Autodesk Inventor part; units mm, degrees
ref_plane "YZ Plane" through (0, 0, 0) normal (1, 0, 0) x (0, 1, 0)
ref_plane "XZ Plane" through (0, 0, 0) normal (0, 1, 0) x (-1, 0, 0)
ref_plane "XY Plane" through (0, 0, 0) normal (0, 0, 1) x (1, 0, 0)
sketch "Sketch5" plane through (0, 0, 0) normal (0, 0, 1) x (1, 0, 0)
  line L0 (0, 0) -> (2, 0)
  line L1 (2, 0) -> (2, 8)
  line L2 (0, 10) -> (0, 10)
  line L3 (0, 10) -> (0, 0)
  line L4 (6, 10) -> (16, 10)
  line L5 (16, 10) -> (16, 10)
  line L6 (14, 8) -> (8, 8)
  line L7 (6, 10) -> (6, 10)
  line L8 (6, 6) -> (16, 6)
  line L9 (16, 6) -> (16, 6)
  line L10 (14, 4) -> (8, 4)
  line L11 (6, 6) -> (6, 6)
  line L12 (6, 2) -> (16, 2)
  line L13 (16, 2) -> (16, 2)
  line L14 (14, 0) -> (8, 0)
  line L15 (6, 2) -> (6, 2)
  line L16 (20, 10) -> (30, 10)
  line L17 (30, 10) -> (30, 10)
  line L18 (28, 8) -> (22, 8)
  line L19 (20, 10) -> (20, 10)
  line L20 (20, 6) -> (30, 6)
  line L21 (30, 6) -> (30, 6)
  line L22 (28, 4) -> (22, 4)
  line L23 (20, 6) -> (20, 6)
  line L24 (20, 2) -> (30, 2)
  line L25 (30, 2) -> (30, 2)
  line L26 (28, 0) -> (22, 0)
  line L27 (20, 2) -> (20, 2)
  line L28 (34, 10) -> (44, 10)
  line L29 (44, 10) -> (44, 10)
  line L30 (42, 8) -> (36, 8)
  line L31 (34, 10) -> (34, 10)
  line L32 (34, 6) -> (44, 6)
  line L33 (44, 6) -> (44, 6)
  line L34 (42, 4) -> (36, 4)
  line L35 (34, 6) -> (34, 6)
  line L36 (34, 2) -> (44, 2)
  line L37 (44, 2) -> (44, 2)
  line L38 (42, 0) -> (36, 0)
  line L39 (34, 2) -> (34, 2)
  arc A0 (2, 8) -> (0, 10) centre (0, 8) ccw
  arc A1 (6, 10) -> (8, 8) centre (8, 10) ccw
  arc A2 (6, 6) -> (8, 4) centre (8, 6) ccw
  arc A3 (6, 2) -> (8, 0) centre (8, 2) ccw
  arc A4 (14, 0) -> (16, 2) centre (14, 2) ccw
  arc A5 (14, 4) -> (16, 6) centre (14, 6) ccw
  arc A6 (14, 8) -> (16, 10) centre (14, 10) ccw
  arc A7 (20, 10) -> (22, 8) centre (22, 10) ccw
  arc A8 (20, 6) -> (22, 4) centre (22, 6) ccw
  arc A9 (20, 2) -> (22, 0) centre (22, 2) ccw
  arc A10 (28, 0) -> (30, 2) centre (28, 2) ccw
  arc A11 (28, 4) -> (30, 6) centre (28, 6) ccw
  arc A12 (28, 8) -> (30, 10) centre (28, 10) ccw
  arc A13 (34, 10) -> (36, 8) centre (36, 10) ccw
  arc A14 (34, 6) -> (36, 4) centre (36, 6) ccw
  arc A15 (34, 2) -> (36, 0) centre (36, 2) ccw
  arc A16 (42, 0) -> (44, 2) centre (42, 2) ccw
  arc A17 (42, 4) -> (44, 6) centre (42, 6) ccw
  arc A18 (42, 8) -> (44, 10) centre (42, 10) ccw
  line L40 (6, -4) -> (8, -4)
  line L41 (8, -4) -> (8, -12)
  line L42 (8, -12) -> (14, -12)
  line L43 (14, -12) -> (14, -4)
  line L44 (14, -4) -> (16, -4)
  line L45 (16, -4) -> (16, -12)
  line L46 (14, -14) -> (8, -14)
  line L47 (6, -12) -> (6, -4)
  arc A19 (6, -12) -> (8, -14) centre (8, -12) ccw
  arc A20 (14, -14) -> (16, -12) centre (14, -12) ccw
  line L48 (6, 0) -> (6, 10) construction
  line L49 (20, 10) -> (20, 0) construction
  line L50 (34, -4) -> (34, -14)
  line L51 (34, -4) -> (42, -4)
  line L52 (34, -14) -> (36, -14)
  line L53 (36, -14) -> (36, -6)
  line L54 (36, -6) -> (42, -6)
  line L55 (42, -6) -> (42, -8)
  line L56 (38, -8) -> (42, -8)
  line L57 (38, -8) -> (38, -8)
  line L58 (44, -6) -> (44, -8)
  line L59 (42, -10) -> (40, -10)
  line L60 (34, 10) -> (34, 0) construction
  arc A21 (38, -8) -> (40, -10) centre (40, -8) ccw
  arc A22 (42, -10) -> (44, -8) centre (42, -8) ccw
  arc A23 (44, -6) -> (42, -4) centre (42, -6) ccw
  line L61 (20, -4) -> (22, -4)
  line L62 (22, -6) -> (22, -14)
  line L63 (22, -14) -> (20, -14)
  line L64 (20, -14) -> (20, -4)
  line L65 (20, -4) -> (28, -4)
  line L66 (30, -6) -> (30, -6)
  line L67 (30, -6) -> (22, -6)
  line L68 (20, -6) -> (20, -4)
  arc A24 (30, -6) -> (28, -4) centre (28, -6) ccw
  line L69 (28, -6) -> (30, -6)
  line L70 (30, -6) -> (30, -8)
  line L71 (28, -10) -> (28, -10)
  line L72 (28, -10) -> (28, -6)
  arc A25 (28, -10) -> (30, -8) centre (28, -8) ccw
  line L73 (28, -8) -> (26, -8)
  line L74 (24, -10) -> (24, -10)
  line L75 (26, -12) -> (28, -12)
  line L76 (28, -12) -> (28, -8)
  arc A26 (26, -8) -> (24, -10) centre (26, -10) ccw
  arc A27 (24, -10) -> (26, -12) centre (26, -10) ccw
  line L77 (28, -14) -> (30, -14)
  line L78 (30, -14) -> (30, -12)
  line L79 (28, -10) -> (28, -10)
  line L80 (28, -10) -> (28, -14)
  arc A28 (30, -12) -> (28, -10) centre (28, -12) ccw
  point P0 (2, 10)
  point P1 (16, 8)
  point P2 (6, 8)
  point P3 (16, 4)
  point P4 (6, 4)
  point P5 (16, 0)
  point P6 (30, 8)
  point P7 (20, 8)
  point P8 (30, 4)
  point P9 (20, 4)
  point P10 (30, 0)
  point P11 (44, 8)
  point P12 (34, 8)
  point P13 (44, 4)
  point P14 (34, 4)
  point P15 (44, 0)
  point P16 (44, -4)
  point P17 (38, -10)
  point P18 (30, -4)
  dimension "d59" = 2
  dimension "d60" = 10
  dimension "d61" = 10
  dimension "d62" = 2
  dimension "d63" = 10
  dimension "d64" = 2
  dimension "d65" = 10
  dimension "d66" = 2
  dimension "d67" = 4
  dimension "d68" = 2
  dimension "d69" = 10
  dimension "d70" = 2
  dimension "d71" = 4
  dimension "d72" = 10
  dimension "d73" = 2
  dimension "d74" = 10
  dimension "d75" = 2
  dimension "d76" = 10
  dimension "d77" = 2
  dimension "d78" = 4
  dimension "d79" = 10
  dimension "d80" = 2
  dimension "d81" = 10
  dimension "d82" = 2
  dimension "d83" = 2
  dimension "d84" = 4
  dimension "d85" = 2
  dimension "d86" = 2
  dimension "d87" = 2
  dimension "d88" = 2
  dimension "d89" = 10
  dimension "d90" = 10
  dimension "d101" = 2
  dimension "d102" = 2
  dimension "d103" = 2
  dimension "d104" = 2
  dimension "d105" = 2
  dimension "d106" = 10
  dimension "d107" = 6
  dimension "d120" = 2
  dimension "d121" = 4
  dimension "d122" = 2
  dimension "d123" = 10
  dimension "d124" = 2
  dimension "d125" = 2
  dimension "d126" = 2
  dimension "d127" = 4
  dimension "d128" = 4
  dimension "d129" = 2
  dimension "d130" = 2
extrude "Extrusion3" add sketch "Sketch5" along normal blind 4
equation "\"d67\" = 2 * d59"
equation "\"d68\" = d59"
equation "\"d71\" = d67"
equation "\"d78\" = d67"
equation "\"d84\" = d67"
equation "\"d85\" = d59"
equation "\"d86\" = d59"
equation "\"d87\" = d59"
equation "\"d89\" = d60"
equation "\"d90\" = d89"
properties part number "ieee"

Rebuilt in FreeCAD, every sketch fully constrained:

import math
import FreeCAD as App
import Part
import Sketcher

doc = App.newDocument("Part")
params = doc.addObject("Spreadsheet::Sheet", "Params")
for row, (alias, value) in enumerate([
    ("sketch1_radius", "2 mm"),
    ("pad1_length", "4 mm"),
], start=1):
    params.set(f"A{row}", alias)
    params.set(f"B{row}", "=" + value)
    params.setAlias(f"B{row}", alias)

body = doc.addObject("PartDesign::Body", "Body")
body.AllowCompound = True

# Sketch on XY plane
sketch1 = body.newObject("Sketcher::SketchObject", "Sketch")
sketch1.AttachmentSupport = (doc.getObject("XY_Plane"), [""])
sketch1.MapMode = "FlatFace"
sketch1.addGeometry([
    Part.LineSegment(App.Vector(0, 10, 0), App.Vector(0, 0, 0)),  # 0
    Part.LineSegment(App.Vector(0, 0, 0), App.Vector(2, 0, 0)),  # 1
    Part.LineSegment(App.Vector(2, 0, 0), App.Vector(2, 8, 0)),  # 2
    Part.ArcOfCircle(Part.Circle(App.Vector(0, 8, 0), App.Vector(0, 0, 1), 2), math.radians(0), math.radians(90)),  # 3
    Part.LineSegment(App.Vector(16, 10, 0), App.Vector(6, 10, 0)),  # 4
    Part.ArcOfCircle(Part.Circle(App.Vector(8, 10, 0), App.Vector(0, 0, 1), 2), math.radians(180), math.radians(270)),  # 5
    Part.LineSegment(App.Vector(8, 8, 0), App.Vector(14, 8, 0)),  # 6
    Part.ArcOfCircle(Part.Circle(App.Vector(14, 10, 0), App.Vector(0, 0, 1), 2), math.radians(-90), math.radians(0)),  # 7
    Part.LineSegment(App.Vector(16, 6, 0), App.Vector(6, 6, 0)),  # 8
    Part.ArcOfCircle(Part.Circle(App.Vector(8, 6, 0), App.Vector(0, 0, 1), 2), math.radians(180), math.radians(270)),  # 9
    Part.LineSegment(App.Vector(8, 4, 0), App.Vector(14, 4, 0)),  # 10
    Part.ArcOfCircle(Part.Circle(App.Vector(14, 6, 0), App.Vector(0, 0, 1), 2), math.radians(-90), math.radians(0)),  # 11
    Part.LineSegment(App.Vector(16, 2, 0), App.Vector(6, 2, 0)),  # 12
    Part.ArcOfCircle(Part.Circle(App.Vector(8, 2, 0), App.Vector(0, 0, 1), 2), math.radians(180), math.radians(270)),  # 13
    Part.LineSegment(App.Vector(8, 0, 0), App.Vector(14, 0, 0)),  # 14
    Part.ArcOfCircle(Part.Circle(App.Vector(14, 2, 0), App.Vector(0, 0, 1), 2), math.radians(-90), math.radians(0)),  # 15
    Part.LineSegment(App.Vector(30, 10, 0), App.Vector(20, 10, 0)),  # 16
    Part.ArcOfCircle(Part.Circle(App.Vector(22, 10, 0), App.Vector(0, 0, 1), 2), math.radians(180), math.radians(270)),  # 17
    Part.LineSegment(App.Vector(22, 8, 0), App.Vector(28, 8, 0)),  # 18
    Part.ArcOfCircle(Part.Circle(App.Vector(28, 10, 0), App.Vector(0, 0, 1), 2), math.radians(-90), math.radians(0)),  # 19
    Part.LineSegment(App.Vector(30, 6, 0), App.Vector(20, 6, 0)),  # 20
    Part.ArcOfCircle(Part.Circle(App.Vector(22, 6, 0), App.Vector(0, 0, 1), 2), math.radians(180), math.radians(270)),  # 21
    Part.LineSegment(App.Vector(22, 4, 0), App.Vector(28, 4, 0)),  # 22
    Part.ArcOfCircle(Part.Circle(App.Vector(28, 6, 0), App.Vector(0, 0, 1), 2), math.radians(-90), math.radians(0)),  # 23
    Part.LineSegment(App.Vector(30, 2, 0), App.Vector(20, 2, 0)),  # 24
    Part.ArcOfCircle(Part.Circle(App.Vector(22, 2, 0), App.Vector(0, 0, 1), 2), math.radians(180), math.radians(270)),  # 25
    Part.LineSegment(App.Vector(22, 0, 0), App.Vector(28, 0, 0)),  # 26
    Part.ArcOfCircle(Part.Circle(App.Vector(28, 2, 0), App.Vector(0, 0, 1), 2), math.radians(-90), math.radians(0)),  # 27
    Part.LineSegment(App.Vector(44, 10, 0), App.Vector(34, 10, 0)),  # 28
    Part.ArcOfCircle(Part.Circle(App.Vector(36, 10, 0), App.Vector(0, 0, 1), 2), math.radians(180), math.radians(270)),  # 29
    Part.LineSegment(App.Vector(36, 8, 0), App.Vector(42, 8, 0)),  # 30
    Part.ArcOfCircle(Part.Circle(App.Vector(42, 10, 0), App.Vector(0, 0, 1), 2), math.radians(-90), math.radians(0)),  # 31
    Part.LineSegment(App.Vector(44, 6, 0), App.Vector(34, 6, 0)),  # 32
    Part.ArcOfCircle(Part.Circle(App.Vector(36, 6, 0), App.Vector(0, 0, 1), 2), math.radians(180), math.radians(270)),  # 33
    Part.LineSegment(App.Vector(36, 4, 0), App.Vector(42, 4, 0)),  # 34
    Part.ArcOfCircle(Part.Circle(App.Vector(42, 6, 0), App.Vector(0, 0, 1), 2), math.radians(-90), math.radians(0)),  # 35
    Part.LineSegment(App.Vector(44, 2, 0), App.Vector(34, 2, 0)),  # 36
    Part.ArcOfCircle(Part.Circle(App.Vector(36, 2, 0), App.Vector(0, 0, 1), 2), math.radians(180), math.radians(270)),  # 37
    Part.LineSegment(App.Vector(36, 0, 0), App.Vector(42, 0, 0)),  # 38
    Part.ArcOfCircle(Part.Circle(App.Vector(42, 2, 0), App.Vector(0, 0, 1), 2), math.radians(-90), math.radians(0)),  # 39
    Part.LineSegment(App.Vector(8, -4, 0), App.Vector(6, -4, 0)),  # 40
    Part.LineSegment(App.Vector(6, -4, 0), App.Vector(6, -12, 0)),  # 41
    Part.ArcOfCircle(Part.Circle(App.Vector(8, -12, 0), App.Vector(0, 0, 1), 2), math.radians(180), math.radians(270)),  # 42
    Part.LineSegment(App.Vector(8, -14, 0), App.Vector(14, -14, 0)),  # 43
    Part.ArcOfCircle(Part.Circle(App.Vector(14, -12, 0), App.Vector(0, 0, 1), 2), math.radians(-90), math.radians(0)),  # 44
    Part.LineSegment(App.Vector(16, -12, 0), App.Vector(16, -4, 0)),  # 45
    Part.LineSegment(App.Vector(16, -4, 0), App.Vector(14, -4, 0)),  # 46
    Part.LineSegment(App.Vector(14, -4, 0), App.Vector(14, -12, 0)),  # 47
    Part.LineSegment(App.Vector(14, -12, 0), App.Vector(8, -12, 0)),  # 48
    Part.LineSegment(App.Vector(8, -12, 0), App.Vector(8, -4, 0)),  # 49
    Part.LineSegment(App.Vector(42, -4, 0), App.Vector(34, -4, 0)),  # 50
    Part.LineSegment(App.Vector(34, -4, 0), App.Vector(34, -14, 0)),  # 51
    Part.LineSegment(App.Vector(34, -14, 0), App.Vector(36, -14, 0)),  # 52
    Part.LineSegment(App.Vector(36, -14, 0), App.Vector(36, -6, 0)),  # 53
    Part.LineSegment(App.Vector(36, -6, 0), App.Vector(42, -6, 0)),  # 54
    Part.LineSegment(App.Vector(42, -6, 0), App.Vector(42, -8, 0)),  # 55
    Part.LineSegment(App.Vector(42, -8, 0), App.Vector(38, -8, 0)),  # 56
    Part.ArcOfCircle(Part.Circle(App.Vector(40, -8, 0), App.Vector(0, 0, 1), 2), math.radians(180), math.radians(270)),  # 57
    Part.LineSegment(App.Vector(40, -10, 0), App.Vector(42, -10, 0)),  # 58
    Part.ArcOfCircle(Part.Circle(App.Vector(42, -8, 0), App.Vector(0, 0, 1), 2), math.radians(-90), math.radians(0)),  # 59
    Part.LineSegment(App.Vector(44, -8, 0), App.Vector(44, -6, 0)),  # 60
    Part.ArcOfCircle(Part.Circle(App.Vector(42, -6, 0), App.Vector(0, 0, 1), 2), math.radians(0), math.radians(90)),  # 61
    Part.LineSegment(App.Vector(20, -4, 0), App.Vector(20, -14, 0)),  # 62
    Part.LineSegment(App.Vector(20, -14, 0), App.Vector(22, -14, 0)),  # 63
    Part.LineSegment(App.Vector(22, -14, 0), App.Vector(22, -6, 0)),  # 64
    Part.LineSegment(App.Vector(22, -6, 0), App.Vector(28, -6, 0)),  # 65
    Part.LineSegment(App.Vector(28, -6, 0), App.Vector(28, -8, 0)),  # 66
    Part.LineSegment(App.Vector(28, -8, 0), App.Vector(26, -8, 0)),  # 67
    Part.ArcOfCircle(Part.Circle(App.Vector(26, -10, 0), App.Vector(0, 0, 1), 2), math.radians(90), math.radians(270)),  # 68
    Part.LineSegment(App.Vector(26, -12, 0), App.Vector(28, -12, 0)),  # 69
    Part.LineSegment(App.Vector(28, -12, 0), App.Vector(28, -14, 0)),  # 70
    Part.LineSegment(App.Vector(28, -14, 0), App.Vector(30, -14, 0)),  # 71
    Part.LineSegment(App.Vector(30, -14, 0), App.Vector(30, -12, 0)),  # 72
    Part.ArcOfCircle(Part.Circle(App.Vector(28, -12, 0), App.Vector(0, 0, 1), 2), math.radians(0), math.radians(90)),  # 73
    Part.ArcOfCircle(Part.Circle(App.Vector(28, -8, 0), App.Vector(0, 0, 1), 2), math.radians(-90), math.radians(0)),  # 74
    Part.LineSegment(App.Vector(30, -8, 0), App.Vector(30, -6, 0)),  # 75
    Part.ArcOfCircle(Part.Circle(App.Vector(28, -6, 0), App.Vector(0, 0, 1), 2), math.radians(0), math.radians(90)),  # 76
    Part.LineSegment(App.Vector(28, -4, 0), App.Vector(20, -4, 0)),  # 77
], False)
sketch1.addConstraint([
    Sketcher.Constraint("Coincident", 0, 2, 1, 1),
    Sketcher.Constraint("Coincident", 1, 2, 2, 1),
    Sketcher.Constraint("Tangent", 2, 2, 3, 1),
    Sketcher.Constraint("Coincident", 3, 2, 0, 1),
    Sketcher.Constraint("Coincident", 4, 2, 5, 1),
    Sketcher.Constraint("Tangent", 5, 2, 6, 1),
    Sketcher.Constraint("Tangent", 6, 2, 7, 1),
    Sketcher.Constraint("Coincident", 7, 2, 4, 1),
    Sketcher.Constraint("Coincident", 8, 2, 9, 1),
    Sketcher.Constraint("Tangent", 9, 2, 10, 1),
    Sketcher.Constraint("Tangent", 10, 2, 11, 1),
    Sketcher.Constraint("Coincident", 11, 2, 8, 1),
    Sketcher.Constraint("Coincident", 12, 2, 13, 1),
    Sketcher.Constraint("Tangent", 13, 2, 14, 1),
    Sketcher.Constraint("Tangent", 14, 2, 15, 1),
    Sketcher.Constraint("Coincident", 15, 2, 12, 1),
    Sketcher.Constraint("Coincident", 16, 2, 17, 1),
    Sketcher.Constraint("Tangent", 17, 2, 18, 1),
    Sketcher.Constraint("Tangent", 18, 2, 19, 1),
    Sketcher.Constraint("Coincident", 19, 2, 16, 1),
    Sketcher.Constraint("Coincident", 20, 2, 21, 1),
    Sketcher.Constraint("Tangent", 21, 2, 22, 1),
    Sketcher.Constraint("Tangent", 22, 2, 23, 1),
    Sketcher.Constraint("Coincident", 23, 2, 20, 1),
    Sketcher.Constraint("Coincident", 24, 2, 25, 1),
    Sketcher.Constraint("Tangent", 25, 2, 26, 1),
    Sketcher.Constraint("Tangent", 26, 2, 27, 1),
    Sketcher.Constraint("Coincident", 27, 2, 24, 1),
    Sketcher.Constraint("Coincident", 28, 2, 29, 1),
    Sketcher.Constraint("Tangent", 29, 2, 30, 1),
    Sketcher.Constraint("Tangent", 30, 2, 31, 1),
    Sketcher.Constraint("Coincident", 31, 2, 28, 1),
    Sketcher.Constraint("Coincident", 32, 2, 33, 1),
    Sketcher.Constraint("Tangent", 33, 2, 34, 1),
    Sketcher.Constraint("Tangent", 34, 2, 35, 1),
    Sketcher.Constraint("Coincident", 35, 2, 32, 1),
    Sketcher.Constraint("Coincident", 36, 2, 37, 1),
    Sketcher.Constraint("Tangent", 37, 2, 38, 1),
    Sketcher.Constraint("Tangent", 38, 2, 39, 1),
    Sketcher.Constraint("Coincident", 39, 2, 36, 1),
    Sketcher.Constraint("Coincident", 40, 2, 41, 1),
    Sketcher.Constraint("Tangent", 41, 2, 42, 1),
    Sketcher.Constraint("Tangent", 42, 2, 43, 1),
    Sketcher.Constraint("Tangent", 43, 2, 44, 1),
    Sketcher.Constraint("Tangent", 44, 2, 45, 1),
    Sketcher.Constraint("Coincident", 45, 2, 46, 1),
    Sketcher.Constraint("Coincident", 46, 2, 47, 1),
    Sketcher.Constraint("Coincident", 47, 2, 48, 1),
    Sketcher.Constraint("Coincident", 48, 2, 49, 1),
    Sketcher.Constraint("Coincident", 49, 2, 40, 1),
    Sketcher.Constraint("Coincident", 50, 2, 51, 1),
    Sketcher.Constraint("Coincident", 51, 2, 52, 1),
    Sketcher.Constraint("Coincident", 52, 2, 53, 1),
    Sketcher.Constraint("Coincident", 53, 2, 54, 1),
    Sketcher.Constraint("Coincident", 54, 2, 55, 1),
    Sketcher.Constraint("Coincident", 55, 2, 56, 1),
    Sketcher.Constraint("Coincident", 56, 2, 57, 1),
    Sketcher.Constraint("Tangent", 57, 2, 58, 1),
    Sketcher.Constraint("Tangent", 58, 2, 59, 1),
    Sketcher.Constraint("Tangent", 59, 2, 60, 1),
    Sketcher.Constraint("Tangent", 60, 2, 61, 1),
    Sketcher.Constraint("Tangent", 61, 2, 50, 1),
    Sketcher.Constraint("Coincident", 62, 2, 63, 1),
    Sketcher.Constraint("Coincident", 63, 2, 64, 1),
    Sketcher.Constraint("Coincident", 64, 2, 65, 1),
    Sketcher.Constraint("Coincident", 65, 2, 66, 1),
    Sketcher.Constraint("Coincident", 66, 2, 67, 1),
    Sketcher.Constraint("Tangent", 67, 2, 68, 1),
    Sketcher.Constraint("Tangent", 68, 2, 69, 1),
    Sketcher.Constraint("Coincident", 69, 2, 70, 1),
    Sketcher.Constraint("Coincident", 70, 2, 71, 1),
    Sketcher.Constraint("Coincident", 71, 2, 72, 1),
    Sketcher.Constraint("Tangent", 72, 2, 73, 1),
    Sketcher.Constraint("Tangent", 73, 2, 74, 1),
    Sketcher.Constraint("Tangent", 74, 2, 75, 1),
    Sketcher.Constraint("Tangent", 75, 2, 76, 1),
    Sketcher.Constraint("Tangent", 76, 2, 77, 1),
    Sketcher.Constraint("Coincident", 77, 2, 62, 1),
    Sketcher.Constraint("Vertical", 0),
    Sketcher.Constraint("Horizontal", 1),
    Sketcher.Constraint("Vertical", 2),
    Sketcher.Constraint("Horizontal", 4),
    Sketcher.Constraint("Horizontal", 6),
    Sketcher.Constraint("Horizontal", 8),
    Sketcher.Constraint("Horizontal", 10),
    Sketcher.Constraint("Horizontal", 12),
    Sketcher.Constraint("Horizontal", 14),
    Sketcher.Constraint("Horizontal", 16),
    Sketcher.Constraint("Horizontal", 18),
    Sketcher.Constraint("Horizontal", 20),
    Sketcher.Constraint("Horizontal", 22),
    Sketcher.Constraint("Horizontal", 24),
    Sketcher.Constraint("Horizontal", 26),
    Sketcher.Constraint("Horizontal", 28),
    Sketcher.Constraint("Horizontal", 30),
    Sketcher.Constraint("Horizontal", 32),
    Sketcher.Constraint("Horizontal", 34),
    Sketcher.Constraint("Horizontal", 36),
    Sketcher.Constraint("Horizontal", 38),
    Sketcher.Constraint("Horizontal", 40),
    Sketcher.Constraint("Vertical", 41),
    Sketcher.Constraint("Horizontal", 43),
    Sketcher.Constraint("Vertical", 45),
    Sketcher.Constraint("Horizontal", 46),
    Sketcher.Constraint("Vertical", 47),
    Sketcher.Constraint("Horizontal", 48),
    Sketcher.Constraint("Vertical", 49),
    Sketcher.Constraint("Horizontal", 50),
    Sketcher.Constraint("Vertical", 51),
    Sketcher.Constraint("Horizontal", 52),
    Sketcher.Constraint("Vertical", 53),
    Sketcher.Constraint("Horizontal", 54),
    Sketcher.Constraint("Vertical", 55),
    Sketcher.Constraint("Horizontal", 56),
    Sketcher.Constraint("Horizontal", 58),
    Sketcher.Constraint("Vertical", 60),
    Sketcher.Constraint("Vertical", 62),
    Sketcher.Constraint("Horizontal", 63),
    Sketcher.Constraint("Vertical", 64),
    Sketcher.Constraint("Horizontal", 65),
    Sketcher.Constraint("Vertical", 66),
    Sketcher.Constraint("Horizontal", 67),
    Sketcher.Constraint("Horizontal", 69),
    Sketcher.Constraint("Vertical", 70),
    Sketcher.Constraint("Horizontal", 71),
    Sketcher.Constraint("Vertical", 72),
    Sketcher.Constraint("Vertical", 75),
    Sketcher.Constraint("Horizontal", 77),
    Sketcher.Constraint("Coincident", 0, 2, -1, 1),
    Sketcher.Constraint("Coincident", 47, 2, 44, 3),
    Sketcher.Constraint("Coincident", 48, 2, 42, 3),
    Sketcher.Constraint("Coincident", 54, 2, 61, 3),
    Sketcher.Constraint("Coincident", 55, 2, 59, 3),
    Sketcher.Constraint("Coincident", 65, 2, 76, 3),
    Sketcher.Constraint("Coincident", 66, 2, 74, 3),
    Sketcher.Constraint("Coincident", 69, 2, 73, 3),
    Sketcher.Constraint("Equal", 3, 5),
    Sketcher.Constraint("Equal", 5, 7),
    Sketcher.Constraint("Equal", 7, 9),
    Sketcher.Constraint("Equal", 9, 11),
    Sketcher.Constraint("Equal", 11, 13),
    Sketcher.Constraint("Equal", 13, 15),
    Sketcher.Constraint("Equal", 15, 17),
    Sketcher.Constraint("Equal", 17, 19),
    Sketcher.Constraint("Equal", 19, 21),
    Sketcher.Constraint("Equal", 21, 23),
    Sketcher.Constraint("Equal", 23, 25),
    Sketcher.Constraint("Equal", 25, 27),
    Sketcher.Constraint("Equal", 27, 29),
    Sketcher.Constraint("Equal", 29, 31),
    Sketcher.Constraint("Equal", 31, 33),
    Sketcher.Constraint("Equal", 33, 35),
    Sketcher.Constraint("Equal", 35, 37),
    Sketcher.Constraint("Equal", 37, 39),
    Sketcher.Constraint("Equal", 39, 42),
    Sketcher.Constraint("Equal", 44, 57),
    Sketcher.Constraint("Equal", 57, 59),
    Sketcher.Constraint("Equal", 61, 68),
    Sketcher.Constraint("Equal", 68, 73),
    Sketcher.Constraint("Symmetric", 35, 3, 61, 3, -1),
    Sketcher.Constraint("Symmetric", 23, 3, 76, 3, -1),
    Sketcher.Constraint("Symmetric", 10, 2, 46, 2, -1),
    Sketcher.Constraint("Symmetric", 9, 2, 49, 2, -1),
    Sketcher.Constraint("Symmetric", 30, 2, 55, 2, -1),
    Sketcher.Constraint("Symmetric", 18, 2, 66, 2, -1),
    Sketcher.Constraint("PointOnObject", 3, 3, -2),
    Sketcher.Constraint("PointOnObject", 13, 2, -1),
    Sketcher.Constraint("PointOnObject", 25, 2, -1),
    Sketcher.Constraint("PointOnObject", 37, 2, -1),
    Sketcher.Constraint("Horizontal", 7, 3, 17, 3),
    Sketcher.Constraint("Horizontal", 11, 3, 21, 3),
    Sketcher.Constraint("Horizontal", 19, 3, 29, 3),
    Sketcher.Constraint("Horizontal", 23, 3, 33, 3),
    Sketcher.Constraint("Horizontal", 44, 3, 73, 3),
    Sketcher.Constraint("Horizontal", 31, 3, 3, 2),
    Sketcher.Constraint("Horizontal", 3, 2, 4, 2),
    Sketcher.Constraint("Horizontal", 35, 3, 8, 2),
    Sketcher.Constraint("Horizontal", 39, 3, 12, 2),
    Sketcher.Constraint("Horizontal", 7, 2, 16, 2),
    Sketcher.Constraint("Horizontal", 11, 2, 20, 2),
    Sketcher.Constraint("Horizontal", 15, 2, 24, 2),
    Sketcher.Constraint("Horizontal", 19, 2, 28, 2),
    Sketcher.Constraint("Horizontal", 23, 2, 32, 2),
    Sketcher.Constraint("Horizontal", 27, 2, 36, 2),
    Sketcher.Constraint("Horizontal", 43, 2, 51, 2),
    Sketcher.Constraint("Horizontal", 52, 2, 62, 2),
    Sketcher.Constraint("Horizontal", 63, 2, 70, 2),
    Sketcher.Constraint("Vertical", 5, 3, 9, 3),
    Sketcher.Constraint("Vertical", 7, 3, 11, 3),
    Sketcher.Constraint("Vertical", 9, 3, 13, 3),
    Sketcher.Constraint("Vertical", 11, 3, 15, 3),
    Sketcher.Constraint("Vertical", 17, 3, 21, 3),
    Sketcher.Constraint("Vertical", 21, 3, 25, 3),
    Sketcher.Constraint("Vertical", 23, 3, 27, 3),
    Sketcher.Constraint("Vertical", 29, 3, 33, 3),
    Sketcher.Constraint("Vertical", 33, 3, 37, 3),
    Sketcher.Constraint("Vertical", 35, 3, 39, 3),
    Sketcher.Constraint("Vertical", 27, 3, 73, 3),
    Sketcher.Constraint("Vertical", 36, 2, 50, 2),
    Sketcher.Constraint("Vertical", 37, 2, 52, 2),
    Sketcher.Constraint("Vertical", 24, 2, 62, 2),
    Sketcher.Constraint("Vertical", 25, 2, 63, 2),
    Sketcher.Constraint("Equal", 12, 16),
    Sketcher.Constraint("Equal", 24, 28),
    Sketcher.Constraint("Equal", 52, 58),
    Sketcher.Constraint("Equal", 63, 67),
    Sketcher.Constraint("Equal", 36, 0),
    Sketcher.Constraint("Equal", 2, 41),
    Sketcher.Constraint("Equal", 71, 55),
    Sketcher.Constraint("Radius", 3, 2.0),
    Sketcher.Constraint("DistanceX", -1, 1, 4, 2, 6.0),
    Sketcher.Constraint("DistanceX", -1, 1, 17, 3, 22.0),
    Sketcher.Constraint("DistanceX", -1, 1, 29, 3, 36.0),
])
sketch1.setExpression("Constraints[209]", "Params.sketch1_radius")
pad1 = body.newObject("PartDesign::Pad", "Pad")
pad1.Profile = sketch1
pad1.setExpression("Length", "Params.pad1_length")

doc.recompute()
